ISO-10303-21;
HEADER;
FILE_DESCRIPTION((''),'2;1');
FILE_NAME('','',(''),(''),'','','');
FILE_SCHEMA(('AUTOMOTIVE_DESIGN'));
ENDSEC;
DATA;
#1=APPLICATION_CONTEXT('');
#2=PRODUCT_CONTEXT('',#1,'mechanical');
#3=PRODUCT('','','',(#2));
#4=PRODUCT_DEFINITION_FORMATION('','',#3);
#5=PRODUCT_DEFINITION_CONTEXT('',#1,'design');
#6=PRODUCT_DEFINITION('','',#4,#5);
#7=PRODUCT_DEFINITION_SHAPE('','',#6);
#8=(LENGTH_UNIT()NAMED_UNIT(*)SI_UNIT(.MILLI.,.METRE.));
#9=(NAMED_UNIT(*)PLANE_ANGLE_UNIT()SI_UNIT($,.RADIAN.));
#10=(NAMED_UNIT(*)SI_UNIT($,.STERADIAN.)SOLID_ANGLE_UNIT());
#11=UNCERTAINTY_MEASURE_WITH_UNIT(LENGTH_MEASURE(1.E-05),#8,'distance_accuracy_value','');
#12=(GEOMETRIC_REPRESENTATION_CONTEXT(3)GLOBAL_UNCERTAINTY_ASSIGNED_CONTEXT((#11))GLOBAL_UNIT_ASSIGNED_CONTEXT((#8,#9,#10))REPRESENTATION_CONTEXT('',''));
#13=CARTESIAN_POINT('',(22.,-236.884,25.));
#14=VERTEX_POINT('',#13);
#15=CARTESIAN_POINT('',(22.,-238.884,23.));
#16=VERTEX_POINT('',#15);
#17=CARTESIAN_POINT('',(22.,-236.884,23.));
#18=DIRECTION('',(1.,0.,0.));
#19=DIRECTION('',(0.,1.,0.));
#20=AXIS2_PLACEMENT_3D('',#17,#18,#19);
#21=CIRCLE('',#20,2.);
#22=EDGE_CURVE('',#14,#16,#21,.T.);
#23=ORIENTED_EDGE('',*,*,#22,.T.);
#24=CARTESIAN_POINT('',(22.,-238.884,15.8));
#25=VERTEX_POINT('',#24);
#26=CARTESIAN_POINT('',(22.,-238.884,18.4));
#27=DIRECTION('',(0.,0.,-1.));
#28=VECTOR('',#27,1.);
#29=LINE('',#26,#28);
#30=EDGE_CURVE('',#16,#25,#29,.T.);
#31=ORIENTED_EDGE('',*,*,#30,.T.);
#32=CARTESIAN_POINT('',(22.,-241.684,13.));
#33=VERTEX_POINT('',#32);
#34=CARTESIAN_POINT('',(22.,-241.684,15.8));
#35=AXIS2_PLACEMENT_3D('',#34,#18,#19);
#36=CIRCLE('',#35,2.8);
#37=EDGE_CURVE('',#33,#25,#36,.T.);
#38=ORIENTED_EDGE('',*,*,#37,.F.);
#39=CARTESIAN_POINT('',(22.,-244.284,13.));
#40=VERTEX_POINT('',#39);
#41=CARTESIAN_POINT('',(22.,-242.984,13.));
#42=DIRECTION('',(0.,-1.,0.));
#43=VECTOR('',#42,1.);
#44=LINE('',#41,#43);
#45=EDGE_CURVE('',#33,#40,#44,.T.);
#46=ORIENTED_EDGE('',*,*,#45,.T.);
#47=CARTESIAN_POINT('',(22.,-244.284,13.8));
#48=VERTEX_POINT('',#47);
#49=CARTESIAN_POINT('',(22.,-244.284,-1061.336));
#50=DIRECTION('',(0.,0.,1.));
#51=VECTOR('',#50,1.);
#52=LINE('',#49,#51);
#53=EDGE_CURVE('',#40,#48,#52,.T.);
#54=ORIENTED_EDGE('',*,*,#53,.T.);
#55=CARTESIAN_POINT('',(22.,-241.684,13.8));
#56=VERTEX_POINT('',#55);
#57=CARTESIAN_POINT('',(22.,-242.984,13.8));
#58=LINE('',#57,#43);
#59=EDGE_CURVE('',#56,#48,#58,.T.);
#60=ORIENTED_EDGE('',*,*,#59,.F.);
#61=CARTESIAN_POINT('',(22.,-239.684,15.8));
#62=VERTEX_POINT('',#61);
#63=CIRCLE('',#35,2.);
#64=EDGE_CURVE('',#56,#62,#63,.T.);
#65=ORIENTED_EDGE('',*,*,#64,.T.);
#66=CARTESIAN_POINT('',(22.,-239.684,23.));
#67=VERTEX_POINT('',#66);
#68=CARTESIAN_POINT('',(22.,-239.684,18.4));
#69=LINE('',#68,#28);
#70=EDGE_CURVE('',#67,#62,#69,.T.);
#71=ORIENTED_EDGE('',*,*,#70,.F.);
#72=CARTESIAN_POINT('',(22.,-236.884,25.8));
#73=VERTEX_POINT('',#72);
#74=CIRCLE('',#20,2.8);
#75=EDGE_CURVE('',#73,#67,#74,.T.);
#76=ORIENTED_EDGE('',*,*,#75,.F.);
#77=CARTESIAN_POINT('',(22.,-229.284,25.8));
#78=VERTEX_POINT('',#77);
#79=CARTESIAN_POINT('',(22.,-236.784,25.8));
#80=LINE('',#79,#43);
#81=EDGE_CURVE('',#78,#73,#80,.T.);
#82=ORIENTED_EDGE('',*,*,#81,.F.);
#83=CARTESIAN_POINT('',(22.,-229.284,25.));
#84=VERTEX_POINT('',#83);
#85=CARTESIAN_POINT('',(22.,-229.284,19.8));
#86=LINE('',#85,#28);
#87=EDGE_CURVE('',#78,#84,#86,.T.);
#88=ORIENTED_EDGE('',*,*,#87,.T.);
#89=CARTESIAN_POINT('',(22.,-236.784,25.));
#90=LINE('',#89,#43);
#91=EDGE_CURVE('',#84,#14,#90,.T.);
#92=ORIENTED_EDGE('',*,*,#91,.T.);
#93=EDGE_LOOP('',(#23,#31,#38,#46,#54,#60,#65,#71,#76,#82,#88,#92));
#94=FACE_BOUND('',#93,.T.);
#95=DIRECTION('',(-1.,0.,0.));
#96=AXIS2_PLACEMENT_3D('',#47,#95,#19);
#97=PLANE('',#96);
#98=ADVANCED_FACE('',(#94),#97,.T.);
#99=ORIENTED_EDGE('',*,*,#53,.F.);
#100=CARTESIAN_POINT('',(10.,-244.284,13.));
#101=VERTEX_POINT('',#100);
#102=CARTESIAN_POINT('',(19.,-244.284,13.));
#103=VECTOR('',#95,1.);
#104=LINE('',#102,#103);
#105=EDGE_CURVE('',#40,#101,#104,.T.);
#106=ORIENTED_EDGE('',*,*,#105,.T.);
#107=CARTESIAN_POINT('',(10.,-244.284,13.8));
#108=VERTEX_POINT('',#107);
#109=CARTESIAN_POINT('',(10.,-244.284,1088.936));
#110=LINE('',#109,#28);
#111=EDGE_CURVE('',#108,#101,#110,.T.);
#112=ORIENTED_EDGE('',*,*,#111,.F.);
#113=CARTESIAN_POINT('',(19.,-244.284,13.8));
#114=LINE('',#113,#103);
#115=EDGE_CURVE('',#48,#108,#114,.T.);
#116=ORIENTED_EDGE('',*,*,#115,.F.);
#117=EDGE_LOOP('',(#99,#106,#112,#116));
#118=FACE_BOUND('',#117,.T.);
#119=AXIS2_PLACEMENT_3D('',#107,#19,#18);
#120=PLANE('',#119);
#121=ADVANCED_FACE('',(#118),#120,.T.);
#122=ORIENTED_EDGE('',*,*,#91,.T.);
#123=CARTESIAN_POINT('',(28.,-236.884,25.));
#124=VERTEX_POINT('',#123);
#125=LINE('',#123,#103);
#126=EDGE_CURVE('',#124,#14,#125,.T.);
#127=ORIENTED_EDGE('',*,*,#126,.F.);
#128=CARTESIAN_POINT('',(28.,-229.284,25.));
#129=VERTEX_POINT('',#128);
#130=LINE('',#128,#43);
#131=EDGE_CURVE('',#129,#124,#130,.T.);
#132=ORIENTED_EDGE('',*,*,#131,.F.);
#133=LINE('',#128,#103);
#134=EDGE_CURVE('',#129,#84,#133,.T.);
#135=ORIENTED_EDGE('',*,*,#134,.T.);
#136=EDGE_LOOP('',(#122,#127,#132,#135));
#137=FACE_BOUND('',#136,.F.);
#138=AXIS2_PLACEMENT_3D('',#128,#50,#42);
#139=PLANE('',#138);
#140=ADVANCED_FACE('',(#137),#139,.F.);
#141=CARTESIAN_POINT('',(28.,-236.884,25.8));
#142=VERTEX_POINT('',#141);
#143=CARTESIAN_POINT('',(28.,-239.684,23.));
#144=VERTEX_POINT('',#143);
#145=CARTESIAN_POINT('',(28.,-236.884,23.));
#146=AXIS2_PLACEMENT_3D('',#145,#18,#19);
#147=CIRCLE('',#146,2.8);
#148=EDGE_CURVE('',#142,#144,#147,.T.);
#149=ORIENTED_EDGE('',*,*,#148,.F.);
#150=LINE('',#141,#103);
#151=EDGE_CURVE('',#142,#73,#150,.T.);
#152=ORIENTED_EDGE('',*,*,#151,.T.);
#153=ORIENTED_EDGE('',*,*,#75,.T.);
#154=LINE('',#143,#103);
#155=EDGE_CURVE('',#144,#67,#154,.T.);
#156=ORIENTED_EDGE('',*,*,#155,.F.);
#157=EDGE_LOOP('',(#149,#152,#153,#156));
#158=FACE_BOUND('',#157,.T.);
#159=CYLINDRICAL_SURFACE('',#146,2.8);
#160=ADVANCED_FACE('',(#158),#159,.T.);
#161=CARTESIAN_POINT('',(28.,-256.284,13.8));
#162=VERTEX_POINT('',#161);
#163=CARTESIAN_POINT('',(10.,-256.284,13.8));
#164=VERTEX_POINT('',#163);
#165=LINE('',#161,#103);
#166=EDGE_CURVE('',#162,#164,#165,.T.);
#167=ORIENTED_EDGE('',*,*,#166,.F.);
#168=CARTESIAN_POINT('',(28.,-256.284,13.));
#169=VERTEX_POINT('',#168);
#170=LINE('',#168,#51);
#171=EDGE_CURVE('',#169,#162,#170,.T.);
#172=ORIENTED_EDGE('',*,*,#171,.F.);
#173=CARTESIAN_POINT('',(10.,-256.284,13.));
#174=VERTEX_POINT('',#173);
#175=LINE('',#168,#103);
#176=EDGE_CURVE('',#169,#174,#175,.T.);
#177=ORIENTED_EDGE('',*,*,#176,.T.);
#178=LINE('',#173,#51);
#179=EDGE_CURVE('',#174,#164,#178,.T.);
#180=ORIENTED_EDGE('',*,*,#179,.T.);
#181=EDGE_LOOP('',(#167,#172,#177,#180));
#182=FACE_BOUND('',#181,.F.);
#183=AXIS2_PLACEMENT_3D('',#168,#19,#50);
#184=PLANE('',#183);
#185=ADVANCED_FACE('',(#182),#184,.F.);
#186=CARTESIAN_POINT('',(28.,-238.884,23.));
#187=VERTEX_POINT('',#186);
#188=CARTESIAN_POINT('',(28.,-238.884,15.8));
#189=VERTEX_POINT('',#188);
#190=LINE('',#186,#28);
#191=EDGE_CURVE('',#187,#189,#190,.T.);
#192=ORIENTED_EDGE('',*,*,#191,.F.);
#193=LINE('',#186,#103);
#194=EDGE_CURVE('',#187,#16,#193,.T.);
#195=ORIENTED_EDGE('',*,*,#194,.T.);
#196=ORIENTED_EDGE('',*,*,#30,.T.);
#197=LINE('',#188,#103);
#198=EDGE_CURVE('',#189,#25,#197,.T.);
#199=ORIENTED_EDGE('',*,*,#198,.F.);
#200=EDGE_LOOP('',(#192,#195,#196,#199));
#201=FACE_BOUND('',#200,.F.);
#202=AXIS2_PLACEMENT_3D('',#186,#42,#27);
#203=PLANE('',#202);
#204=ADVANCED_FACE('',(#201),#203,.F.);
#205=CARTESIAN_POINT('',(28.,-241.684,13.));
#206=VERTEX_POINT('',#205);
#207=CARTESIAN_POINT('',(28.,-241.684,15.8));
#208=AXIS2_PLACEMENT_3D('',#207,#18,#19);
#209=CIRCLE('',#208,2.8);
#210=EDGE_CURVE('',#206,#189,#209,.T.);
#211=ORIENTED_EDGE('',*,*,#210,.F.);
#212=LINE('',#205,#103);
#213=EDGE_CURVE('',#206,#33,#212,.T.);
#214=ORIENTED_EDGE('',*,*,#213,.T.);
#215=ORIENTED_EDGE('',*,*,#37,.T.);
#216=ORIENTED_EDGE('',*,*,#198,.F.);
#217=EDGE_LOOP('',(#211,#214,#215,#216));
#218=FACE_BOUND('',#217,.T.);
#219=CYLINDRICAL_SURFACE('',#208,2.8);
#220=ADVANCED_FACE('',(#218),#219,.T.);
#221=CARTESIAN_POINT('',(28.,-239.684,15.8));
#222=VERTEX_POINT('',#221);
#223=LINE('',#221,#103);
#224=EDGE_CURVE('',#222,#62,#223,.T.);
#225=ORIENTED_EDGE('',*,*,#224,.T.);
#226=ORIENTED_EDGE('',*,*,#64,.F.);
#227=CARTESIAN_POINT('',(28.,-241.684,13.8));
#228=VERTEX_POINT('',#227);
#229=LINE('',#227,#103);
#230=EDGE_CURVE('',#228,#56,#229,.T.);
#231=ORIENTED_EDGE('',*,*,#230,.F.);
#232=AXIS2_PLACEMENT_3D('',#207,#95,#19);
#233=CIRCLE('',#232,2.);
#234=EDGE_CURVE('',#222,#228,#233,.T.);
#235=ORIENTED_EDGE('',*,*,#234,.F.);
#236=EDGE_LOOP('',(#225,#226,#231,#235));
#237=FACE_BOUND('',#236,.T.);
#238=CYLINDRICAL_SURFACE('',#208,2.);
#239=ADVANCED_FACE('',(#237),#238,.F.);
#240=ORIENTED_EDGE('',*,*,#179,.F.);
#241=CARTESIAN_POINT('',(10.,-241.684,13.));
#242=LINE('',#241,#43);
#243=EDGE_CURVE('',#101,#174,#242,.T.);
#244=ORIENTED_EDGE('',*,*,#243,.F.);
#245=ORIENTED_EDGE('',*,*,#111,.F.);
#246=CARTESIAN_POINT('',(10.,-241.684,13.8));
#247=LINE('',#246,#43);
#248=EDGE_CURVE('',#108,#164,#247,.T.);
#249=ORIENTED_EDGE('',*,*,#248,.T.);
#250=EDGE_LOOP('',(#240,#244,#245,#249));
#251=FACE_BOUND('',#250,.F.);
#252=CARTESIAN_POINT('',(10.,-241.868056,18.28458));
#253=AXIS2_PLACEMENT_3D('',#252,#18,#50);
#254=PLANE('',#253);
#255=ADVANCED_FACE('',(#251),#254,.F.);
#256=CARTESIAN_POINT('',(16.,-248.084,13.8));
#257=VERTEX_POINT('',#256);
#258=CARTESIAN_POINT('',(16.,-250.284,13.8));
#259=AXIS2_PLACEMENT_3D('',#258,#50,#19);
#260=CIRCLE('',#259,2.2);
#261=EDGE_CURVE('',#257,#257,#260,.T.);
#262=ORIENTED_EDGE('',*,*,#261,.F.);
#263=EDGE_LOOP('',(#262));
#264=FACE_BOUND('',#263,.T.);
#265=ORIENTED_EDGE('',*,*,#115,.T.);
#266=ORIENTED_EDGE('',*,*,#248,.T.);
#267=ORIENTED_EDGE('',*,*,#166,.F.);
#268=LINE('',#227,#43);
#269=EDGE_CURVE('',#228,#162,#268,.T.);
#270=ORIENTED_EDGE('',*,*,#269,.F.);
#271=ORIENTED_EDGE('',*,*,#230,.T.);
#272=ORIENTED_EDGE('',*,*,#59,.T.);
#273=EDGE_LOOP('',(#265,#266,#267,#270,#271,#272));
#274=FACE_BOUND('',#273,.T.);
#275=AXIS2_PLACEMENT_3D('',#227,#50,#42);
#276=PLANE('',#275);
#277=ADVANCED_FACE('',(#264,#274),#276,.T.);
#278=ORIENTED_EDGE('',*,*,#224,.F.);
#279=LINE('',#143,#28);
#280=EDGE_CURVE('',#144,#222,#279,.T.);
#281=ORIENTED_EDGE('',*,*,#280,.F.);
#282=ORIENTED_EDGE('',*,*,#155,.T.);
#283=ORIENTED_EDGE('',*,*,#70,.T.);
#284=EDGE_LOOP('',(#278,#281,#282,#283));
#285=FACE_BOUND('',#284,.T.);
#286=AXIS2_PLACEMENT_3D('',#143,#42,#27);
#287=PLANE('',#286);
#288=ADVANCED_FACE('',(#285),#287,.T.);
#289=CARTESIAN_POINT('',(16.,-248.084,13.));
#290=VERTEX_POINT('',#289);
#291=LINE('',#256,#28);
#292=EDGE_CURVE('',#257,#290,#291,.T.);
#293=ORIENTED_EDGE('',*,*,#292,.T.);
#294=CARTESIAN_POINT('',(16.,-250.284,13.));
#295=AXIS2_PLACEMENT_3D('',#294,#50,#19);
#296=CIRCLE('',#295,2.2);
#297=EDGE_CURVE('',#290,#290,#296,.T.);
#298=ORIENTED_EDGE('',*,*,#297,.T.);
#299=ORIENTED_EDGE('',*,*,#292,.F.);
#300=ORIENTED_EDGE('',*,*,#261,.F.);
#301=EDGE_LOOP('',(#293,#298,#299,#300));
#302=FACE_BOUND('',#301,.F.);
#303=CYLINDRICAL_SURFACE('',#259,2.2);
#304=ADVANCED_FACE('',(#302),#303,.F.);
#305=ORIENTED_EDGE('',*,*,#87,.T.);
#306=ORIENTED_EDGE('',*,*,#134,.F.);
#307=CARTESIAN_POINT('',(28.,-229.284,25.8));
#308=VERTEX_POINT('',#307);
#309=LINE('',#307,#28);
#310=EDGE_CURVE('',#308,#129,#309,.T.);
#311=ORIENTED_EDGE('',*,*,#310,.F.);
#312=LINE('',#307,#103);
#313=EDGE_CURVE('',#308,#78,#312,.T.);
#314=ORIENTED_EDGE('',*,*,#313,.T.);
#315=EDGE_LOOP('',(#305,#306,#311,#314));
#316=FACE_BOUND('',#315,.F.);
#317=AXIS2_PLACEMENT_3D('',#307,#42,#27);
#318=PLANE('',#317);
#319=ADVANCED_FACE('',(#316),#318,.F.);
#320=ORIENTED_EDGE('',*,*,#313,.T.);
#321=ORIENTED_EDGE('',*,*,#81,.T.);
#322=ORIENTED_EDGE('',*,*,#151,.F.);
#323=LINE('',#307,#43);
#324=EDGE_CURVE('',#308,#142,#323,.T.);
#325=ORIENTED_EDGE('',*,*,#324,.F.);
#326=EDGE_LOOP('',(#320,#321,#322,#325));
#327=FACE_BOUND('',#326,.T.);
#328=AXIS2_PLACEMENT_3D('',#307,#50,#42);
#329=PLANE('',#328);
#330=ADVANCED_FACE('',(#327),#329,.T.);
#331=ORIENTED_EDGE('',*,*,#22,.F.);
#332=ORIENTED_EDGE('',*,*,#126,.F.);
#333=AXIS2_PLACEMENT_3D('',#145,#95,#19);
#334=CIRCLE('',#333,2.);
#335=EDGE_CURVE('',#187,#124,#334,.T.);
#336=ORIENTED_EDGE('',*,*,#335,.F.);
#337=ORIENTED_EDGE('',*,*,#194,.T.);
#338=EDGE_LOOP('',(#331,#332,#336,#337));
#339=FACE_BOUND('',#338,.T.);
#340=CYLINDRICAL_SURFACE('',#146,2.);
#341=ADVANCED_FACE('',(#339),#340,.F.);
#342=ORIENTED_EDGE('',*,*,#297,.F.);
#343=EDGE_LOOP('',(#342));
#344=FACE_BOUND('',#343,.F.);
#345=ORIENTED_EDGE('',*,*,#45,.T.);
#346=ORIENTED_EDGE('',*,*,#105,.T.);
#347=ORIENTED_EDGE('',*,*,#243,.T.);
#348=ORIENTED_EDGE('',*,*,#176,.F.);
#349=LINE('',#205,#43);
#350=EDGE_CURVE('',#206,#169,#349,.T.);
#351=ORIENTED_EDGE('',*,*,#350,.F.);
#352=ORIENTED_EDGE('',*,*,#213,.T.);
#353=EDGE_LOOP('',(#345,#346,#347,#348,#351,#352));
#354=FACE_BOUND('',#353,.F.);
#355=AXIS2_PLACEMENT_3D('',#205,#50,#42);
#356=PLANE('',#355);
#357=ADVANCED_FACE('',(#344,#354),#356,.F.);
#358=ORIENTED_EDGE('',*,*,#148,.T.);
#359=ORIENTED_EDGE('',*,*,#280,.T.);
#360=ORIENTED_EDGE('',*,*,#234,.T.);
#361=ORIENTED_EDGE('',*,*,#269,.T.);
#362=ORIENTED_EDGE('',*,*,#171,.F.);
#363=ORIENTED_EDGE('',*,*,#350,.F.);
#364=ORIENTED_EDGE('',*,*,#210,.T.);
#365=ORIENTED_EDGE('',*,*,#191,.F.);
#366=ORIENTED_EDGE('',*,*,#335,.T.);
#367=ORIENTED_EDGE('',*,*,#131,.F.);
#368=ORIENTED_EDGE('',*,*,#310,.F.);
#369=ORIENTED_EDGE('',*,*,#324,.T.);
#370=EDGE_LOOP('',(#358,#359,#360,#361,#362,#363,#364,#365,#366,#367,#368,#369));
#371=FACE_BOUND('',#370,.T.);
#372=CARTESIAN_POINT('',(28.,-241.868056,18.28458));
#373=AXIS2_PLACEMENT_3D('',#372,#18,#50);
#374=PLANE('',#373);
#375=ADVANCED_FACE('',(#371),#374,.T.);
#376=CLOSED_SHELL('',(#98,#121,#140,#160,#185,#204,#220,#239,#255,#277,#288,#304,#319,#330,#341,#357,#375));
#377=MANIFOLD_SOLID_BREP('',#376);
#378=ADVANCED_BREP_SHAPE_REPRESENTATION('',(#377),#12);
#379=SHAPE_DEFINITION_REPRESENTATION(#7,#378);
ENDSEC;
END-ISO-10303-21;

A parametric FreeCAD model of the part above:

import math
import FreeCAD as App
import Part
import Sketcher

V = App.Vector

doc = App.newDocument("Part")
body = doc.addObject("PartDesign::Body", "Body")

sketch1 = body.newObject("Sketcher::SketchObject", "Sketch")
sketch1.AttachmentSupport = (doc.getObject("YZ_Plane"), [""])
sketch1.MapMode = "FlatFace"
sketch1.AttachmentOffset = App.Placement(V(0, 0, 28), App.Rotation())
sketch1.addGeometry([
    Part.LineSegment(V(-229.284, 25, 0), V(-229.284, 25.8, 0)),
    Part.LineSegment(V(-229.284, 25.8, 0), V(-236.884, 25.8, 0)),
    Part.ArcOfCircle(Part.Circle(V(-236.884, 23, 0), V(0, 0, 1), 2.8), math.radians(90), math.radians(180)),
    Part.LineSegment(V(-239.684, 23, 0), V(-239.684, 15.8, 0)),
    Part.ArcOfCircle(Part.Circle(V(-241.684, 15.8, 0), V(0, 0, 1), 2), math.radians(-90), math.radians(0)),
    Part.LineSegment(V(-241.684, 13.8, 0), V(-256.284, 13.8, 0)),
    Part.LineSegment(V(-256.284, 13.8, 0), V(-256.284, 13, 0)),
    Part.LineSegment(V(-256.284, 13, 0), V(-241.684, 13, 0)),
    Part.ArcOfCircle(Part.Circle(V(-241.684, 15.8, 0), V(0, 0, 1), 2.8), math.radians(-90), math.radians(0)),
    Part.LineSegment(V(-238.884, 15.8, 0), V(-238.884, 23, 0)),
    Part.ArcOfCircle(Part.Circle(V(-236.884, 23, 0), V(0, 0, 1), 2), math.radians(90), math.radians(180)),
    Part.LineSegment(V(-236.884, 25, 0), V(-229.284, 25, 0)),
], False)
sketch1.addConstraint([
    Sketcher.Constraint("Coincident", 0, 2, 1, 1),
    Sketcher.Constraint("Tangent", 1, 2, 2, 1),
    Sketcher.Constraint("Tangent", 2, 2, 3, 1),
    Sketcher.Constraint("Tangent", 3, 2, 4, 2),
    Sketcher.Constraint("Tangent", 4, 1, 5, 1),
    Sketcher.Constraint("Coincident", 5, 2, 6, 1),
    Sketcher.Constraint("Coincident", 6, 2, 7, 1),
    Sketcher.Constraint("Tangent", 7, 2, 8, 1),
    Sketcher.Constraint("Tangent", 8, 2, 9, 1),
    Sketcher.Constraint("Tangent", 9, 2, 10, 2),
    Sketcher.Constraint("Tangent", 10, 1, 11, 1),
    Sketcher.Constraint("Coincident", 11, 2, 0, 1),
    Sketcher.Constraint("Vertical", 0),
    Sketcher.Constraint("Horizontal", 1),
    Sketcher.Constraint("Vertical", 3),
    Sketcher.Constraint("Horizontal", 5),
    Sketcher.Constraint("Vertical", 6),
    Sketcher.Constraint("Horizontal", 7),
    Sketcher.Constraint("Vertical", 9),
    Sketcher.Constraint("Horizontal", 11),
    Sketcher.Constraint("Coincident", 8, 3, 4, 3),
    Sketcher.Constraint("Coincident", 10, 3, 2, 3),
    Sketcher.Constraint("Equal", 2, 8),
    Sketcher.Constraint("Radius", 4, 2.0),
    Sketcher.Constraint("Radius", 2, 2.8),
    Sketcher.Constraint("DistanceX", 1, 2, 1, 1, 7.6),
    Sketcher.Constraint("DistanceX", 5, 2, 5, 1, 14.6),
    Sketcher.Constraint("DistanceY", 3, 2, 3, 1, 7.2),
    Sketcher.Constraint("DistanceY", -1, 1, 2, 3, 23.0),
    Sketcher.Constraint("DistanceX", 2, 3, -1, 1, 236.884),
])
pad1 = body.newObject("PartDesign::Pad", "Pad")
pad1.Profile = sketch1
pad1.Length = 18
pad1.Reversed = True

sketch2 = body.newObject("Sketcher::SketchObject", "Sketch001")
sketch2.AttachmentSupport = (doc.getObject("XY_Plane"), [""])
sketch2.MapMode = "FlatFace"
sketch2.AttachmentOffset = App.Placement(V(0, 0, 13.8), App.Rotation())
sketch2.addGeometry([
    Part.LineSegment(V(10, -204.284, 0), V(10, -244.284, 0)),
    Part.LineSegment(V(10, -244.284, 0), V(22, -244.284, 0)),
    Part.LineSegment(V(22, -244.284, 0), V(22, -204.284, 0)),
    Part.LineSegment(V(22, -204.284, 0), V(10, -204.284, 0)),
    Part.Circle(V(16, -250.284, 0), V(0, 0, 1), 2.2),
], False)
sketch2.addConstraint([
    Sketcher.Constraint("Coincident", 0, 2, 1, 1),
    Sketcher.Constraint("Coincident", 1, 2, 2, 1),
    Sketcher.Constraint("Coincident", 2, 2, 3, 1),
    Sketcher.Constraint("Coincident", 3, 2, 0, 1),
    Sketcher.Constraint("Vertical", 0),
    Sketcher.Constraint("Horizontal", 1),
    Sketcher.Constraint("Vertical", 2),
    Sketcher.Constraint("Horizontal", 3),
    Sketcher.Constraint("Diameter", 4, 4.4),
    Sketcher.Constraint("DistanceX", 1, 1, 1, 2, 12.0),
    Sketcher.Constraint("DistanceY", 0, 2, 0, 1, 40.0),
    Sketcher.Constraint("DistanceX", -1, 1, 4, 3, 16.0),
    Sketcher.Constraint("DistanceX", -1, 1, 0, 2, 10.0),
    Sketcher.Constraint("DistanceY", 4, 3, 0, 2, 6.0),
    Sketcher.Constraint("DistanceY", 4, 3, -1, 1, 250.284),
])
pocket1 = body.newObject("PartDesign::Pocket", "Pocket")
pocket1.Profile = sketch2
pocket1.Type = "ThroughAll"
pocket1.Midplane = True

doc.recompute()
